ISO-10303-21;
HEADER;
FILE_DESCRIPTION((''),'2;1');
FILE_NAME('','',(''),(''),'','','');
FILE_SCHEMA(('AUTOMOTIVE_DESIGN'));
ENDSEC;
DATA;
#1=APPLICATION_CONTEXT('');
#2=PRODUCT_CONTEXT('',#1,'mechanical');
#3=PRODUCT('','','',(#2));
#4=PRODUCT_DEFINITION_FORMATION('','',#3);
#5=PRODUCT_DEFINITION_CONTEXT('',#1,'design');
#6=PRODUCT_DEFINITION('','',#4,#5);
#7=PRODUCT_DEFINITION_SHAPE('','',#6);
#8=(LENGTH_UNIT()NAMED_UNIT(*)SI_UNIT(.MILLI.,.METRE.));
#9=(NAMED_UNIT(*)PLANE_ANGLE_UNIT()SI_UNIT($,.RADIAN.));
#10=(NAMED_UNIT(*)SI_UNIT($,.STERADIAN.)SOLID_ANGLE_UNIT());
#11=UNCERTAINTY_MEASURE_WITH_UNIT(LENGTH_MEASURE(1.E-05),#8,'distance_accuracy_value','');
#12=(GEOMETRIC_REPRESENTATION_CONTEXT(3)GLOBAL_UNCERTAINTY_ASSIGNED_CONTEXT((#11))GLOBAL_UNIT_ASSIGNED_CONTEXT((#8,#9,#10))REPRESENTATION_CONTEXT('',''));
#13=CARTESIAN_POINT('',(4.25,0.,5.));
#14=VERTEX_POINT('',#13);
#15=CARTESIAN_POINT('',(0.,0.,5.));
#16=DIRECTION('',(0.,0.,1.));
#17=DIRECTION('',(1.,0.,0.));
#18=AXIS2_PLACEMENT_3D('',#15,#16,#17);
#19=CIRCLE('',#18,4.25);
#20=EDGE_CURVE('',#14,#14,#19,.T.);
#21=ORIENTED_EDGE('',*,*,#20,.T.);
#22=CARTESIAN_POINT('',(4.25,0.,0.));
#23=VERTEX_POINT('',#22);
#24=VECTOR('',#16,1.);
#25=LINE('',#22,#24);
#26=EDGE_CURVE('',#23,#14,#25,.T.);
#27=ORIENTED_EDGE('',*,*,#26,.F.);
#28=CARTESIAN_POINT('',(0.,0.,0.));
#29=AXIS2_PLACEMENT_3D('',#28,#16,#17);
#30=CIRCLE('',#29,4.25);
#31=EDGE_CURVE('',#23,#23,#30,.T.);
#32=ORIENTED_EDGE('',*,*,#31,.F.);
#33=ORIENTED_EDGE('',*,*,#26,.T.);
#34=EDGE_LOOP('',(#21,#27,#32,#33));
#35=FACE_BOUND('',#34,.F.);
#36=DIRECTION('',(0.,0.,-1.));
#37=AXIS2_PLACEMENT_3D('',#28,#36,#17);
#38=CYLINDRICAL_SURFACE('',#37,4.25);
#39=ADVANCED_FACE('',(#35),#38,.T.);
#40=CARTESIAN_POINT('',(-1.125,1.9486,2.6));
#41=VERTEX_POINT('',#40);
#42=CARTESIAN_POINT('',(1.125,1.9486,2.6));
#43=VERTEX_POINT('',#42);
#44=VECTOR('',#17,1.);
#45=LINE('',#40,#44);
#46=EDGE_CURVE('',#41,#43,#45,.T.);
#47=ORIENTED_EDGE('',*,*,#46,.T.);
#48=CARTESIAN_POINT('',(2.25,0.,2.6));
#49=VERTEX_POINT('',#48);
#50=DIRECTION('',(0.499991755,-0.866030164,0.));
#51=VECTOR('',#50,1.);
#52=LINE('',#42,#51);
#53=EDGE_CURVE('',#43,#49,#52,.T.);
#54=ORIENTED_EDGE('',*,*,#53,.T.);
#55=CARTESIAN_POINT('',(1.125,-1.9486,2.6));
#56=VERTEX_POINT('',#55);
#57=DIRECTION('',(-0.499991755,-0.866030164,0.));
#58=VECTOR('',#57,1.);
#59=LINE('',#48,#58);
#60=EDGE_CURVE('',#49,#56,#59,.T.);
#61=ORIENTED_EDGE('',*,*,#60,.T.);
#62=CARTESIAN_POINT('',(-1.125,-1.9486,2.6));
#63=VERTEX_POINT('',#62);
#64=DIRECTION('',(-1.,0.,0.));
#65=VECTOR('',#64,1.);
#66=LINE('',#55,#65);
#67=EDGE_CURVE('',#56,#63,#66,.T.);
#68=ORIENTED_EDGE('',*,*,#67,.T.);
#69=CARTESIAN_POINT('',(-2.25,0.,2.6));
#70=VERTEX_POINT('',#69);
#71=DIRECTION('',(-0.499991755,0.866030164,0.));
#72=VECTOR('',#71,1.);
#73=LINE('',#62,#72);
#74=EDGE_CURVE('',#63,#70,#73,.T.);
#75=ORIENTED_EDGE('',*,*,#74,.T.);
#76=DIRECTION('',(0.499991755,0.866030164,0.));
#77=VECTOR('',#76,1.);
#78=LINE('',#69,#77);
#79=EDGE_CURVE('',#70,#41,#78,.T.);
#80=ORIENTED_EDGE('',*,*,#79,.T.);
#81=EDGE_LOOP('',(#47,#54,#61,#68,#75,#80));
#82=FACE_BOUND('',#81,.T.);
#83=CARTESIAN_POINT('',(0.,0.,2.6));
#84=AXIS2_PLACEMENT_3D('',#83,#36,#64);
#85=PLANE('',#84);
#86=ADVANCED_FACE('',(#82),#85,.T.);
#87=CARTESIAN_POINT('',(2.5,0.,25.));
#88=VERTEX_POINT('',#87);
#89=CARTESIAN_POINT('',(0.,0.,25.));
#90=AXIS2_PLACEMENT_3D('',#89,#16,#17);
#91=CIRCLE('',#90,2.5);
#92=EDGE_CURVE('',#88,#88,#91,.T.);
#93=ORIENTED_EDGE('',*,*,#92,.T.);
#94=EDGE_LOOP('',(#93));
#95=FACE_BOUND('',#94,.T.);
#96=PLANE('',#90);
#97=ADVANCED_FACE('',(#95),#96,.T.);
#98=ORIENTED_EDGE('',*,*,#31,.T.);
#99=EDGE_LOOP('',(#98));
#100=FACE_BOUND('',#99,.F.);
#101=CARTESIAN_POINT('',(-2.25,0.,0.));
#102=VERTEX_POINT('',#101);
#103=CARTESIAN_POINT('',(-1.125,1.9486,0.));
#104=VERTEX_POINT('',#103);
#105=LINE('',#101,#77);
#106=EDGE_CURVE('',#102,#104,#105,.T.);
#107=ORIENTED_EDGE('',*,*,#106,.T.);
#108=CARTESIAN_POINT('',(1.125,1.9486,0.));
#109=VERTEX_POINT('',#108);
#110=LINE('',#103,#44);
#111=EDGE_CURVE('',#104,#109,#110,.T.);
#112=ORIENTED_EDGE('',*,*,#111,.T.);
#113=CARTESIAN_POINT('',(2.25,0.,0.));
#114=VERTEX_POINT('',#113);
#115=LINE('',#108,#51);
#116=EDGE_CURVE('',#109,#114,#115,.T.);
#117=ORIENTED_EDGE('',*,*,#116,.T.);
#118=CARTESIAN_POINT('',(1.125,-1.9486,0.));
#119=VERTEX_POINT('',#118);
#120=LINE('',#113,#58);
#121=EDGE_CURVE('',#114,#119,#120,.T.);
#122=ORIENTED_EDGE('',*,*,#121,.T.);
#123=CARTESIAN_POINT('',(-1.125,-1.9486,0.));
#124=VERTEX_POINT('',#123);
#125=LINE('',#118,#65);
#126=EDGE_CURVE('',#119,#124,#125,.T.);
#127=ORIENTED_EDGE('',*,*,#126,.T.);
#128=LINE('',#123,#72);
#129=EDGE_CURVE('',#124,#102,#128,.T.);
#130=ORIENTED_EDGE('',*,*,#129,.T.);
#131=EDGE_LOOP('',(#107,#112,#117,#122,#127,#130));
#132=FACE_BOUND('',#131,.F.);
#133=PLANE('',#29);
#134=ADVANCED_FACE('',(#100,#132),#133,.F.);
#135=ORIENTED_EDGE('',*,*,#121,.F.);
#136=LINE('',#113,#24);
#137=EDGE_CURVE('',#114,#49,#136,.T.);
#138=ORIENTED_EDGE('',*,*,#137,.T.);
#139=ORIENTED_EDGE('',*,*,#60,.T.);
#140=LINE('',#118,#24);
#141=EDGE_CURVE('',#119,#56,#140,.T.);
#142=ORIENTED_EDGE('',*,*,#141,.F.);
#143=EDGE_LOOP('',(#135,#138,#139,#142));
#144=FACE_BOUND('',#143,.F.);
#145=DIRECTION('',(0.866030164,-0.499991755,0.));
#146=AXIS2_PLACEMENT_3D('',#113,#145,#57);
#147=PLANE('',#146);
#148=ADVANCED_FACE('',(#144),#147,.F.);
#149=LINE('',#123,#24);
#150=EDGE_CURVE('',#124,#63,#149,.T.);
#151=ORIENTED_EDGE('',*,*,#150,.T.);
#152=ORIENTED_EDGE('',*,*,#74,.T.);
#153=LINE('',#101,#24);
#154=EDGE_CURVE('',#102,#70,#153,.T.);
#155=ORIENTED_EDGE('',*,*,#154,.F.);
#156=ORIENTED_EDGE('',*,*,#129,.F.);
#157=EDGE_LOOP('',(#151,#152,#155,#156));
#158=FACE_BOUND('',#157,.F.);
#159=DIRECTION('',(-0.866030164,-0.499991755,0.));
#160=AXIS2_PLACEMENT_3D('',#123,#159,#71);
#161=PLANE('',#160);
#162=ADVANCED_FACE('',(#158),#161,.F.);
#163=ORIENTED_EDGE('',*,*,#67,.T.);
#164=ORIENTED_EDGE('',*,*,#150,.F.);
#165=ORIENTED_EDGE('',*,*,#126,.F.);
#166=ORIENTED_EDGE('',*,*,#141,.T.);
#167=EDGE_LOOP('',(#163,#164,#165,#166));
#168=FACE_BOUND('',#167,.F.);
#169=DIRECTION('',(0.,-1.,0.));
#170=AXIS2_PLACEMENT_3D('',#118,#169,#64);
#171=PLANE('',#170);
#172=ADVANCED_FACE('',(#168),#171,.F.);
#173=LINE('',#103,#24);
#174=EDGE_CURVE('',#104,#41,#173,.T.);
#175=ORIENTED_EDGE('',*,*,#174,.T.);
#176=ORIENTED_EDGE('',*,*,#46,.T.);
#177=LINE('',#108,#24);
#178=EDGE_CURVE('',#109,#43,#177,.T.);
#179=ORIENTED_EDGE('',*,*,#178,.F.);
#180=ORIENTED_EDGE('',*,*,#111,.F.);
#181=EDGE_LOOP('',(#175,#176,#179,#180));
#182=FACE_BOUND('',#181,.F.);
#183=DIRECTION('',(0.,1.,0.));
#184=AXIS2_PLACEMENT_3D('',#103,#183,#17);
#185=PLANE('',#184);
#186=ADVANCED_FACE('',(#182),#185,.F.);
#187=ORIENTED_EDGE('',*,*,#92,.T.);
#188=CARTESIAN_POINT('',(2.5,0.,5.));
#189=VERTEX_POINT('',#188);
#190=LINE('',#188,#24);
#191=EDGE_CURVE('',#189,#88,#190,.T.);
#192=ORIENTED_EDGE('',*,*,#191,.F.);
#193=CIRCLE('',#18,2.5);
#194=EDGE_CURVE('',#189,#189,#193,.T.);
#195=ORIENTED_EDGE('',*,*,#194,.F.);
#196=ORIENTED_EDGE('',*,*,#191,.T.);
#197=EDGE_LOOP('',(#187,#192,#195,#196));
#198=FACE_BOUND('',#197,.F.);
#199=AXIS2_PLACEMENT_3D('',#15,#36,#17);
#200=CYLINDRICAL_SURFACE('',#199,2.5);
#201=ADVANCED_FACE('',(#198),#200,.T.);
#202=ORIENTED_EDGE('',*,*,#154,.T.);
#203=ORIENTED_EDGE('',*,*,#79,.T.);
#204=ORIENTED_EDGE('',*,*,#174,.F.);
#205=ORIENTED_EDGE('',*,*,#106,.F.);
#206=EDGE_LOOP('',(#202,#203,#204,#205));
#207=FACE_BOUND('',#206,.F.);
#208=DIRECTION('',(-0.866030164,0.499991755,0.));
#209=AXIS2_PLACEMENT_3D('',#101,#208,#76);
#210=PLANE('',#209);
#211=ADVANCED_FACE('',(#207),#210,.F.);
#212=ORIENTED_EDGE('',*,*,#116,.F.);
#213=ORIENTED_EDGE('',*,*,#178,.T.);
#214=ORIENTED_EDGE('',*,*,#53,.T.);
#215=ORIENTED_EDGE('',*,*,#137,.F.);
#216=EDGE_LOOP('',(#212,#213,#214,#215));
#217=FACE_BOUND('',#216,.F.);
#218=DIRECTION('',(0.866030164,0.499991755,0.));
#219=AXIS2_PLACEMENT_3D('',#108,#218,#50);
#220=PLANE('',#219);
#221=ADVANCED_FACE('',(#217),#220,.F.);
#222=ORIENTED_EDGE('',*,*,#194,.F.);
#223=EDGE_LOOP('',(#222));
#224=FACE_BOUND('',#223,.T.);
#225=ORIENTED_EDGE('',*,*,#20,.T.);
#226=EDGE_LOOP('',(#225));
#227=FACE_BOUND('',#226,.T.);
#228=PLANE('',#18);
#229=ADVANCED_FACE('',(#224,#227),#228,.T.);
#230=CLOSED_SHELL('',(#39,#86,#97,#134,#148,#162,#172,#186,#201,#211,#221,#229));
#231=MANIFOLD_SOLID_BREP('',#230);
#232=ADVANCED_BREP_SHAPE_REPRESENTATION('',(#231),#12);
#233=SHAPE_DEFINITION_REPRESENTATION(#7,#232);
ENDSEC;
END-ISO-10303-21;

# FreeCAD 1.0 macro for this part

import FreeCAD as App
import Part
import Sketcher
Q = App.Units.Quantity

doc = App.newDocument("Part")
params = doc.addObject("Spreadsheet::Sheet", "Params")
for row, (alias, value) in enumerate([
    ("sketch1_diameter", "8.5 mm"),
    ("pad1_length", "5 mm"),
    ("sketch2_diameter", "5 mm"),
    ("pad2_length", "20 mm"),
    ("sketch3_width", "2.25 mm"),
    ("pocket1_length", "2.6 mm"),
], start=1):
    params.set(f"A{row}", alias)
    params.set(f"B{row}", "=" + value)
    params.setAlias(f"B{row}", alias)

body = doc.addObject("PartDesign::Body", "Body")

sketch1 = body.newObject("Sketcher::SketchObject", "Sketch")
sketch1.AttachmentSupport = (doc.getObject("XY_Plane"), [""])
sketch1.MapMode = "FlatFace"
sketch1.addGeometry(Part.Circle(App.Vector(0, 0, 0), App.Vector(0, 0, 1), 4.2), False)
sketch1.addConstraint(Sketcher.Constraint("Coincident", 0, 3, -1, 1))
sketch1.addConstraint(Sketcher.Constraint("Diameter", 0, Q("8.5 mm")))
sketch1.setExpression("Constraints[1]", "Params.sketch1_diameter")
pad1 = body.newObject("PartDesign::Pad", "Pad")
pad1.Profile = sketch1
pad1.setExpression("Length", "Params.pad1_length")

sketch2 = body.newObject("Sketcher::SketchObject", "Sketch001")
sketch2.AttachmentSupport = (doc.getObject("XY_Plane"), [""])
sketch2.MapMode = "FlatFace"
sketch2.AttachmentOffset = App.Placement(App.Vector(0, 0, 5), App.Rotation())
sketch2.addGeometry(Part.Circle(App.Vector(0, 0, 0), App.Vector(0, 0, 1), 2.5), False)
sketch2.addConstraint(Sketcher.Constraint("Coincident", 0, 3, -1, 1))
sketch2.addConstraint(Sketcher.Constraint("Diameter", 0, Q("5 mm")))
sketch2.setExpression("Constraints[1]", "Params.sketch2_diameter")
pad2 = body.newObject("PartDesign::Pad", "Pad001")
pad2.Profile = sketch2
pad2.setExpression("Length", "Params.pad2_length")

sketch3 = body.newObject("Sketcher::SketchObject", "Sketch002")
sketch3.AttachmentSupport = (doc.getObject("XY_Plane"), [""])
sketch3.MapMode = "FlatFace"
sketch3.addGeometry(Part.LineSegment(App.Vector(-1.1, -1.9, 0), App.Vector(-2.2, 0, 0)), False)
sketch3.addGeometry(Part.LineSegment(App.Vector(-2.2, 0, 0), App.Vector(-1.1, 1.9, 0)), False)
sketch3.addGeometry(Part.LineSegment(App.Vector(-1.1, 1.9, 0), App.Vector(1.1, 1.9, 0)), False)
sketch3.addGeometry(Part.LineSegment(App.Vector(1.1, 1.9, 0), App.Vector(2.2, 0, 0)), False)
sketch3.addGeometry(Part.LineSegment(App.Vector(2.2, 0, 0), App.Vector(1.1, -1.9, 0)), False)
sketch3.addGeometry(Part.LineSegment(App.Vector(1.1, -1.9, 0), App.Vector(-1.1, -1.9, 0)), False)
sketch3.addConstraint(Sketcher.Constraint("Coincident", 0, 2, 1, 1))
sketch3.addConstraint(Sketcher.Constraint("Coincident", 1, 2, 2, 1))
sketch3.addConstraint(Sketcher.Constraint("Coincident", 2, 2, 3, 1))
sketch3.addConstraint(Sketcher.Constraint("Coincident", 3, 2, 4, 1))
sketch3.addConstraint(Sketcher.Constraint("Coincident", 4, 2, 5, 1))
sketch3.addConstraint(Sketcher.Constraint("Coincident", 5, 2, 0, 1))
sketch3.addConstraint(Sketcher.Constraint("Horizontal", 2))
sketch3.addConstraint(Sketcher.Constraint("Horizontal", 5))
sketch3.addConstraint(Sketcher.Constraint("Symmetric", 0, 2, 3, 2, -1, 1))
sketch3.addConstraint(Sketcher.Constraint("Symmetric", 1, 2, 4, 2, -1, 1))
sketch3.addConstraint(Sketcher.Constraint("PointOnObject", 0, 2, -1))
sketch3.addConstraint(Sketcher.Constraint("Parallel", 0, 3))
sketch3.addConstraint(Sketcher.Constraint("Vertical", 2, 2, 4, 2))
sketch3.addConstraint(Sketcher.Constraint("Angle", 0, Q("119.9995 deg")))
sketch3.addConstraint(Sketcher.Constraint("DistanceX", 2, 1, 2, 2, Q("2.25 mm")))
sketch3.addConstraint(Sketcher.Constraint("DistanceX", 0, 2, 3, 2, Q("4.5 mm")))
sketch3.setExpression("Constraints[14]", "Params.sketch3_width")
pocket1 = body.newObject("PartDesign::Pocket", "Pocket")
pocket1.Profile = sketch3
pocket1.setExpression("Length", "Params.pocket1_length")
pocket1.Reversed = True

doc.recompute()
